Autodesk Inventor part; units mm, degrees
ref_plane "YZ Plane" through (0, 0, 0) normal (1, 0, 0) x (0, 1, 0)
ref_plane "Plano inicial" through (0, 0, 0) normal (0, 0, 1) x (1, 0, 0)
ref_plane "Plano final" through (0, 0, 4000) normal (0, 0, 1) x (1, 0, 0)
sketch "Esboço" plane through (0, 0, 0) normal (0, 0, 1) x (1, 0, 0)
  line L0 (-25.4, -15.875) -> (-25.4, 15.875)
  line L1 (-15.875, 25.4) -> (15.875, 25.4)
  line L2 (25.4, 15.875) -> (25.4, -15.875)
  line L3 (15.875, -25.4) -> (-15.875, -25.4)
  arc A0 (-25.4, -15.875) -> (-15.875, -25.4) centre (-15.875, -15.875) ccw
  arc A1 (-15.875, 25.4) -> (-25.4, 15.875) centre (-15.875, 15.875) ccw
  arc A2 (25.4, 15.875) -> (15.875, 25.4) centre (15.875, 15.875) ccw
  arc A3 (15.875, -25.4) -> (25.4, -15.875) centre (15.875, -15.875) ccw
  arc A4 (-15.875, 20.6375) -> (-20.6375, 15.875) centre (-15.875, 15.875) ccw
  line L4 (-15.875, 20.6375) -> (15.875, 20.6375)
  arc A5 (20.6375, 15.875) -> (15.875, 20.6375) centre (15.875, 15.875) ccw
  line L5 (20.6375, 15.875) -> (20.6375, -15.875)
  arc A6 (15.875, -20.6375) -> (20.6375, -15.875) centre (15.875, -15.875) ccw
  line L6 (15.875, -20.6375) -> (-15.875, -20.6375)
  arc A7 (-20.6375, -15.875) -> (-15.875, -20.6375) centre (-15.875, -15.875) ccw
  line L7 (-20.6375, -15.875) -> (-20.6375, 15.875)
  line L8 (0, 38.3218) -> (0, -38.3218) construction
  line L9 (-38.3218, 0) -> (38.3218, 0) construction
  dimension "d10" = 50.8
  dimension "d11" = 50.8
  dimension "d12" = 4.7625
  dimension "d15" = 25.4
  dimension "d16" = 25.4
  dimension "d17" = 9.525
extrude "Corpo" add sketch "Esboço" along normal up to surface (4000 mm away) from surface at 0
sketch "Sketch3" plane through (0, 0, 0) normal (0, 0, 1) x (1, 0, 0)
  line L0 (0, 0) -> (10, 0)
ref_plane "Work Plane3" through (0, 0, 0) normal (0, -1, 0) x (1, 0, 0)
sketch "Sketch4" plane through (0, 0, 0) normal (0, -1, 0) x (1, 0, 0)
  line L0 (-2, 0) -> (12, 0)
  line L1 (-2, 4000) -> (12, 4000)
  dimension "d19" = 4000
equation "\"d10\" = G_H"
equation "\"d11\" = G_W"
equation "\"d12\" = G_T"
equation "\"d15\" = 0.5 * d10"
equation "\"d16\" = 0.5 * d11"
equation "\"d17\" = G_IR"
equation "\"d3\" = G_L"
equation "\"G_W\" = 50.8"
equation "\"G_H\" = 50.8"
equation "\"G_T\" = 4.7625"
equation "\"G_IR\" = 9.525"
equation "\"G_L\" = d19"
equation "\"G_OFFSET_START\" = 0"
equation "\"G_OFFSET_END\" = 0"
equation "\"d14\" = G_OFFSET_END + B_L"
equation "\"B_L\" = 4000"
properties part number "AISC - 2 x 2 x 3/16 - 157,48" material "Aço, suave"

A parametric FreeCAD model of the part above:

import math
import FreeCAD as App
import Part
import Sketcher
from FreeCAD import Vector
Q = App.Units.Quantity

doc = App.newDocument("Part")
params = doc.addObject("Spreadsheet::Sheet", "Params")
for row, (alias, value) in enumerate([
    ("sketch1_radius", "0.375 in"),
    ("sketch1_radius2", "0.1875 in"),
    ("pad1_length", "4000 mm"),
], start=1):
    params.set(f"A{row}", alias)
    params.set(f"B{row}", "=" + value)
    params.setAlias(f"B{row}", alias)

body = doc.addObject("PartDesign::Body", "Body")

# Sketch on XY plane
sketch1 = body.newObject("Sketcher::SketchObject", "Sketch")
sketch1.AttachmentSupport = (doc.getObject("XY_Plane"), [""])
sketch1.MapMode = "FlatFace"
sketch1.addGeometry(Part.LineSegment(Vector(-25.4, 15.875, 0), Vector(-25.4, -15.875, 0)), False)
sketch1.addGeometry(Part.ArcOfCircle(Part.Circle(Vector(-15.875, -15.875, 0), Vector(0, 0, 1), 9.525), math.radians(180), math.radians(270)), False)
sketch1.addGeometry(Part.LineSegment(Vector(-15.875, -25.4, 0), Vector(15.875, -25.4, 0)), False)
sketch1.addGeometry(Part.ArcOfCircle(Part.Circle(Vector(15.875, -15.875, 0), Vector(0, 0, 1), 9.525), math.radians(-90), math.radians(0)), False)
sketch1.addGeometry(Part.LineSegment(Vector(25.4, -15.875, 0), Vector(25.4, 15.875, 0)), False)
sketch1.addGeometry(Part.ArcOfCircle(Part.Circle(Vector(15.875, 15.875, 0), Vector(0, 0, 1), 9.525), math.radians(0), math.radians(90)), False)
sketch1.addGeometry(Part.LineSegment(Vector(15.875, 25.4, 0), Vector(-15.875, 25.4, 0)), False)
sketch1.addGeometry(Part.ArcOfCircle(Part.Circle(Vector(-15.875, 15.875, 0), Vector(0, 0, 1), 9.525), math.radians(90), math.radians(180)), False)
sketch1.addGeometry(Part.ArcOfCircle(Part.Circle(Vector(-15.875, 15.875, 0), Vector(0, 0, 1), 4.7625), math.radians(90), math.radians(180)), False)
sketch1.addGeometry(Part.LineSegment(Vector(-15.875, 20.6375, 0), Vector(15.875, 20.6375, 0)), False)
sketch1.addGeometry(Part.ArcOfCircle(Part.Circle(Vector(15.875, 15.875, 0), Vector(0, 0, 1), 4.7625), math.radians(0), math.radians(90)), False)
sketch1.addGeometry(Part.LineSegment(Vector(20.6375, 15.875, 0), Vector(20.6375, -15.875, 0)), False)
sketch1.addGeometry(Part.ArcOfCircle(Part.Circle(Vector(15.875, -15.875, 0), Vector(0, 0, 1), 4.7625), math.radians(-90), math.radians(0)), False)
sketch1.addGeometry(Part.LineSegment(Vector(15.875, -20.6375, 0), Vector(-15.875, -20.6375, 0)), False)
sketch1.addGeometry(Part.ArcOfCircle(Part.Circle(Vector(-15.875, -15.875, 0), Vector(0, 0, 1), 4.7625), math.radians(180), math.radians(270)), False)
sketch1.addGeometry(Part.LineSegment(Vector(-20.6375, -15.875, 0), Vector(-20.6375, 15.875, 0)), False)
sketch1.addConstraint(Sketcher.Constraint("Tangent", 0, 2, 1, 1))
sketch1.addConstraint(Sketcher.Constraint("Tangent", 1, 2, 2, 1))
sketch1.addConstraint(Sketcher.Constraint("Tangent", 2, 2, 3, 1))
sketch1.addConstraint(Sketcher.Constraint("Tangent", 3, 2, 4, 1))
sketch1.addConstraint(Sketcher.Constraint("Tangent", 4, 2, 5, 1))
sketch1.addConstraint(Sketcher.Constraint("Tangent", 5, 2, 6, 1))
sketch1.addConstraint(Sketcher.Constraint("Tangent", 6, 2, 7, 1))
sketch1.addConstraint(Sketcher.Constraint("Tangent", 7, 2, 0, 1))
sketch1.addConstraint(Sketcher.Constraint("Tangent", 8, 1, 9, 1))
sketch1.addConstraint(Sketcher.Constraint("Tangent", 9, 2, 10, 2))
sketch1.addConstraint(Sketcher.Constraint("Tangent", 10, 1, 11, 1))
sketch1.addConstraint(Sketcher.Constraint("Tangent", 11, 2, 12, 2))
sketch1.addConstraint(Sketcher.Constraint("Tangent", 12, 1, 13, 1))
sketch1.addConstraint(Sketcher.Constraint("Tangent", 13, 2, 14, 2))
sketch1.addConstraint(Sketcher.Constraint("Tangent", 14, 1, 15, 1))
sketch1.addConstraint(Sketcher.Constraint("Tangent", 15, 2, 8, 2))
sketch1.addConstraint(Sketcher.Constraint("Vertical", 0))
sketch1.addConstraint(Sketcher.Constraint("Horizontal", 2))
sketch1.addConstraint(Sketcher.Constraint("Vertical", 4))
sketch1.addConstraint(Sketcher.Constraint("Horizontal", 6))
sketch1.addConstraint(Sketcher.Constraint("Horizontal", 9))
sketch1.addConstraint(Sketcher.Constraint("Vertical", 11))
sketch1.addConstraint(Sketcher.Constraint("Horizontal", 13))
sketch1.addConstraint(Sketcher.Constraint("Vertical", 15))
sketch1.addConstraint(Sketcher.Constraint("Coincident", 8, 3, 7, 3))
sketch1.addConstraint(Sketcher.Constraint("Coincident", 10, 3, 5, 3))
sketch1.addConstraint(Sketcher.Constraint("Coincident", 12, 3, 3, 3))
sketch1.addConstraint(Sketcher.Constraint("Equal", 1, 3))
sketch1.addConstraint(Sketcher.Constraint("Equal", 3, 5))
sketch1.addConstraint(Sketcher.Constraint("Equal", 5, 7))
sketch1.addConstraint(Sketcher.Constraint("Equal", 12, 14))
sketch1.addConstraint(Sketcher.Constraint("Symmetric", 1, 3, 5, 3, -1, 1))
sketch1.addConstraint(Sketcher.Constraint("Equal", 13, 0))
sketch1.addConstraint(Sketcher.Constraint("DistanceX", 0, 2, -1, 1, Q("1 in")))
sketch1.addConstraint(Sketcher.Constraint("Radius", 1, Q("0.375 in")))
sketch1.addConstraint(Sketcher.Constraint("Radius", 8, Q("0.1875 in")))
sketch1.setExpression("Constraints[34]", "Params.sketch1_radius")
sketch1.setExpression("Constraints[35]", "Params.sketch1_radius2")
pad1 = body.newObject("PartDesign::Pad", "Pad")
pad1.Profile = sketch1
pad1.setExpression("Length", "Params.pad1_length")

doc.recompute()
